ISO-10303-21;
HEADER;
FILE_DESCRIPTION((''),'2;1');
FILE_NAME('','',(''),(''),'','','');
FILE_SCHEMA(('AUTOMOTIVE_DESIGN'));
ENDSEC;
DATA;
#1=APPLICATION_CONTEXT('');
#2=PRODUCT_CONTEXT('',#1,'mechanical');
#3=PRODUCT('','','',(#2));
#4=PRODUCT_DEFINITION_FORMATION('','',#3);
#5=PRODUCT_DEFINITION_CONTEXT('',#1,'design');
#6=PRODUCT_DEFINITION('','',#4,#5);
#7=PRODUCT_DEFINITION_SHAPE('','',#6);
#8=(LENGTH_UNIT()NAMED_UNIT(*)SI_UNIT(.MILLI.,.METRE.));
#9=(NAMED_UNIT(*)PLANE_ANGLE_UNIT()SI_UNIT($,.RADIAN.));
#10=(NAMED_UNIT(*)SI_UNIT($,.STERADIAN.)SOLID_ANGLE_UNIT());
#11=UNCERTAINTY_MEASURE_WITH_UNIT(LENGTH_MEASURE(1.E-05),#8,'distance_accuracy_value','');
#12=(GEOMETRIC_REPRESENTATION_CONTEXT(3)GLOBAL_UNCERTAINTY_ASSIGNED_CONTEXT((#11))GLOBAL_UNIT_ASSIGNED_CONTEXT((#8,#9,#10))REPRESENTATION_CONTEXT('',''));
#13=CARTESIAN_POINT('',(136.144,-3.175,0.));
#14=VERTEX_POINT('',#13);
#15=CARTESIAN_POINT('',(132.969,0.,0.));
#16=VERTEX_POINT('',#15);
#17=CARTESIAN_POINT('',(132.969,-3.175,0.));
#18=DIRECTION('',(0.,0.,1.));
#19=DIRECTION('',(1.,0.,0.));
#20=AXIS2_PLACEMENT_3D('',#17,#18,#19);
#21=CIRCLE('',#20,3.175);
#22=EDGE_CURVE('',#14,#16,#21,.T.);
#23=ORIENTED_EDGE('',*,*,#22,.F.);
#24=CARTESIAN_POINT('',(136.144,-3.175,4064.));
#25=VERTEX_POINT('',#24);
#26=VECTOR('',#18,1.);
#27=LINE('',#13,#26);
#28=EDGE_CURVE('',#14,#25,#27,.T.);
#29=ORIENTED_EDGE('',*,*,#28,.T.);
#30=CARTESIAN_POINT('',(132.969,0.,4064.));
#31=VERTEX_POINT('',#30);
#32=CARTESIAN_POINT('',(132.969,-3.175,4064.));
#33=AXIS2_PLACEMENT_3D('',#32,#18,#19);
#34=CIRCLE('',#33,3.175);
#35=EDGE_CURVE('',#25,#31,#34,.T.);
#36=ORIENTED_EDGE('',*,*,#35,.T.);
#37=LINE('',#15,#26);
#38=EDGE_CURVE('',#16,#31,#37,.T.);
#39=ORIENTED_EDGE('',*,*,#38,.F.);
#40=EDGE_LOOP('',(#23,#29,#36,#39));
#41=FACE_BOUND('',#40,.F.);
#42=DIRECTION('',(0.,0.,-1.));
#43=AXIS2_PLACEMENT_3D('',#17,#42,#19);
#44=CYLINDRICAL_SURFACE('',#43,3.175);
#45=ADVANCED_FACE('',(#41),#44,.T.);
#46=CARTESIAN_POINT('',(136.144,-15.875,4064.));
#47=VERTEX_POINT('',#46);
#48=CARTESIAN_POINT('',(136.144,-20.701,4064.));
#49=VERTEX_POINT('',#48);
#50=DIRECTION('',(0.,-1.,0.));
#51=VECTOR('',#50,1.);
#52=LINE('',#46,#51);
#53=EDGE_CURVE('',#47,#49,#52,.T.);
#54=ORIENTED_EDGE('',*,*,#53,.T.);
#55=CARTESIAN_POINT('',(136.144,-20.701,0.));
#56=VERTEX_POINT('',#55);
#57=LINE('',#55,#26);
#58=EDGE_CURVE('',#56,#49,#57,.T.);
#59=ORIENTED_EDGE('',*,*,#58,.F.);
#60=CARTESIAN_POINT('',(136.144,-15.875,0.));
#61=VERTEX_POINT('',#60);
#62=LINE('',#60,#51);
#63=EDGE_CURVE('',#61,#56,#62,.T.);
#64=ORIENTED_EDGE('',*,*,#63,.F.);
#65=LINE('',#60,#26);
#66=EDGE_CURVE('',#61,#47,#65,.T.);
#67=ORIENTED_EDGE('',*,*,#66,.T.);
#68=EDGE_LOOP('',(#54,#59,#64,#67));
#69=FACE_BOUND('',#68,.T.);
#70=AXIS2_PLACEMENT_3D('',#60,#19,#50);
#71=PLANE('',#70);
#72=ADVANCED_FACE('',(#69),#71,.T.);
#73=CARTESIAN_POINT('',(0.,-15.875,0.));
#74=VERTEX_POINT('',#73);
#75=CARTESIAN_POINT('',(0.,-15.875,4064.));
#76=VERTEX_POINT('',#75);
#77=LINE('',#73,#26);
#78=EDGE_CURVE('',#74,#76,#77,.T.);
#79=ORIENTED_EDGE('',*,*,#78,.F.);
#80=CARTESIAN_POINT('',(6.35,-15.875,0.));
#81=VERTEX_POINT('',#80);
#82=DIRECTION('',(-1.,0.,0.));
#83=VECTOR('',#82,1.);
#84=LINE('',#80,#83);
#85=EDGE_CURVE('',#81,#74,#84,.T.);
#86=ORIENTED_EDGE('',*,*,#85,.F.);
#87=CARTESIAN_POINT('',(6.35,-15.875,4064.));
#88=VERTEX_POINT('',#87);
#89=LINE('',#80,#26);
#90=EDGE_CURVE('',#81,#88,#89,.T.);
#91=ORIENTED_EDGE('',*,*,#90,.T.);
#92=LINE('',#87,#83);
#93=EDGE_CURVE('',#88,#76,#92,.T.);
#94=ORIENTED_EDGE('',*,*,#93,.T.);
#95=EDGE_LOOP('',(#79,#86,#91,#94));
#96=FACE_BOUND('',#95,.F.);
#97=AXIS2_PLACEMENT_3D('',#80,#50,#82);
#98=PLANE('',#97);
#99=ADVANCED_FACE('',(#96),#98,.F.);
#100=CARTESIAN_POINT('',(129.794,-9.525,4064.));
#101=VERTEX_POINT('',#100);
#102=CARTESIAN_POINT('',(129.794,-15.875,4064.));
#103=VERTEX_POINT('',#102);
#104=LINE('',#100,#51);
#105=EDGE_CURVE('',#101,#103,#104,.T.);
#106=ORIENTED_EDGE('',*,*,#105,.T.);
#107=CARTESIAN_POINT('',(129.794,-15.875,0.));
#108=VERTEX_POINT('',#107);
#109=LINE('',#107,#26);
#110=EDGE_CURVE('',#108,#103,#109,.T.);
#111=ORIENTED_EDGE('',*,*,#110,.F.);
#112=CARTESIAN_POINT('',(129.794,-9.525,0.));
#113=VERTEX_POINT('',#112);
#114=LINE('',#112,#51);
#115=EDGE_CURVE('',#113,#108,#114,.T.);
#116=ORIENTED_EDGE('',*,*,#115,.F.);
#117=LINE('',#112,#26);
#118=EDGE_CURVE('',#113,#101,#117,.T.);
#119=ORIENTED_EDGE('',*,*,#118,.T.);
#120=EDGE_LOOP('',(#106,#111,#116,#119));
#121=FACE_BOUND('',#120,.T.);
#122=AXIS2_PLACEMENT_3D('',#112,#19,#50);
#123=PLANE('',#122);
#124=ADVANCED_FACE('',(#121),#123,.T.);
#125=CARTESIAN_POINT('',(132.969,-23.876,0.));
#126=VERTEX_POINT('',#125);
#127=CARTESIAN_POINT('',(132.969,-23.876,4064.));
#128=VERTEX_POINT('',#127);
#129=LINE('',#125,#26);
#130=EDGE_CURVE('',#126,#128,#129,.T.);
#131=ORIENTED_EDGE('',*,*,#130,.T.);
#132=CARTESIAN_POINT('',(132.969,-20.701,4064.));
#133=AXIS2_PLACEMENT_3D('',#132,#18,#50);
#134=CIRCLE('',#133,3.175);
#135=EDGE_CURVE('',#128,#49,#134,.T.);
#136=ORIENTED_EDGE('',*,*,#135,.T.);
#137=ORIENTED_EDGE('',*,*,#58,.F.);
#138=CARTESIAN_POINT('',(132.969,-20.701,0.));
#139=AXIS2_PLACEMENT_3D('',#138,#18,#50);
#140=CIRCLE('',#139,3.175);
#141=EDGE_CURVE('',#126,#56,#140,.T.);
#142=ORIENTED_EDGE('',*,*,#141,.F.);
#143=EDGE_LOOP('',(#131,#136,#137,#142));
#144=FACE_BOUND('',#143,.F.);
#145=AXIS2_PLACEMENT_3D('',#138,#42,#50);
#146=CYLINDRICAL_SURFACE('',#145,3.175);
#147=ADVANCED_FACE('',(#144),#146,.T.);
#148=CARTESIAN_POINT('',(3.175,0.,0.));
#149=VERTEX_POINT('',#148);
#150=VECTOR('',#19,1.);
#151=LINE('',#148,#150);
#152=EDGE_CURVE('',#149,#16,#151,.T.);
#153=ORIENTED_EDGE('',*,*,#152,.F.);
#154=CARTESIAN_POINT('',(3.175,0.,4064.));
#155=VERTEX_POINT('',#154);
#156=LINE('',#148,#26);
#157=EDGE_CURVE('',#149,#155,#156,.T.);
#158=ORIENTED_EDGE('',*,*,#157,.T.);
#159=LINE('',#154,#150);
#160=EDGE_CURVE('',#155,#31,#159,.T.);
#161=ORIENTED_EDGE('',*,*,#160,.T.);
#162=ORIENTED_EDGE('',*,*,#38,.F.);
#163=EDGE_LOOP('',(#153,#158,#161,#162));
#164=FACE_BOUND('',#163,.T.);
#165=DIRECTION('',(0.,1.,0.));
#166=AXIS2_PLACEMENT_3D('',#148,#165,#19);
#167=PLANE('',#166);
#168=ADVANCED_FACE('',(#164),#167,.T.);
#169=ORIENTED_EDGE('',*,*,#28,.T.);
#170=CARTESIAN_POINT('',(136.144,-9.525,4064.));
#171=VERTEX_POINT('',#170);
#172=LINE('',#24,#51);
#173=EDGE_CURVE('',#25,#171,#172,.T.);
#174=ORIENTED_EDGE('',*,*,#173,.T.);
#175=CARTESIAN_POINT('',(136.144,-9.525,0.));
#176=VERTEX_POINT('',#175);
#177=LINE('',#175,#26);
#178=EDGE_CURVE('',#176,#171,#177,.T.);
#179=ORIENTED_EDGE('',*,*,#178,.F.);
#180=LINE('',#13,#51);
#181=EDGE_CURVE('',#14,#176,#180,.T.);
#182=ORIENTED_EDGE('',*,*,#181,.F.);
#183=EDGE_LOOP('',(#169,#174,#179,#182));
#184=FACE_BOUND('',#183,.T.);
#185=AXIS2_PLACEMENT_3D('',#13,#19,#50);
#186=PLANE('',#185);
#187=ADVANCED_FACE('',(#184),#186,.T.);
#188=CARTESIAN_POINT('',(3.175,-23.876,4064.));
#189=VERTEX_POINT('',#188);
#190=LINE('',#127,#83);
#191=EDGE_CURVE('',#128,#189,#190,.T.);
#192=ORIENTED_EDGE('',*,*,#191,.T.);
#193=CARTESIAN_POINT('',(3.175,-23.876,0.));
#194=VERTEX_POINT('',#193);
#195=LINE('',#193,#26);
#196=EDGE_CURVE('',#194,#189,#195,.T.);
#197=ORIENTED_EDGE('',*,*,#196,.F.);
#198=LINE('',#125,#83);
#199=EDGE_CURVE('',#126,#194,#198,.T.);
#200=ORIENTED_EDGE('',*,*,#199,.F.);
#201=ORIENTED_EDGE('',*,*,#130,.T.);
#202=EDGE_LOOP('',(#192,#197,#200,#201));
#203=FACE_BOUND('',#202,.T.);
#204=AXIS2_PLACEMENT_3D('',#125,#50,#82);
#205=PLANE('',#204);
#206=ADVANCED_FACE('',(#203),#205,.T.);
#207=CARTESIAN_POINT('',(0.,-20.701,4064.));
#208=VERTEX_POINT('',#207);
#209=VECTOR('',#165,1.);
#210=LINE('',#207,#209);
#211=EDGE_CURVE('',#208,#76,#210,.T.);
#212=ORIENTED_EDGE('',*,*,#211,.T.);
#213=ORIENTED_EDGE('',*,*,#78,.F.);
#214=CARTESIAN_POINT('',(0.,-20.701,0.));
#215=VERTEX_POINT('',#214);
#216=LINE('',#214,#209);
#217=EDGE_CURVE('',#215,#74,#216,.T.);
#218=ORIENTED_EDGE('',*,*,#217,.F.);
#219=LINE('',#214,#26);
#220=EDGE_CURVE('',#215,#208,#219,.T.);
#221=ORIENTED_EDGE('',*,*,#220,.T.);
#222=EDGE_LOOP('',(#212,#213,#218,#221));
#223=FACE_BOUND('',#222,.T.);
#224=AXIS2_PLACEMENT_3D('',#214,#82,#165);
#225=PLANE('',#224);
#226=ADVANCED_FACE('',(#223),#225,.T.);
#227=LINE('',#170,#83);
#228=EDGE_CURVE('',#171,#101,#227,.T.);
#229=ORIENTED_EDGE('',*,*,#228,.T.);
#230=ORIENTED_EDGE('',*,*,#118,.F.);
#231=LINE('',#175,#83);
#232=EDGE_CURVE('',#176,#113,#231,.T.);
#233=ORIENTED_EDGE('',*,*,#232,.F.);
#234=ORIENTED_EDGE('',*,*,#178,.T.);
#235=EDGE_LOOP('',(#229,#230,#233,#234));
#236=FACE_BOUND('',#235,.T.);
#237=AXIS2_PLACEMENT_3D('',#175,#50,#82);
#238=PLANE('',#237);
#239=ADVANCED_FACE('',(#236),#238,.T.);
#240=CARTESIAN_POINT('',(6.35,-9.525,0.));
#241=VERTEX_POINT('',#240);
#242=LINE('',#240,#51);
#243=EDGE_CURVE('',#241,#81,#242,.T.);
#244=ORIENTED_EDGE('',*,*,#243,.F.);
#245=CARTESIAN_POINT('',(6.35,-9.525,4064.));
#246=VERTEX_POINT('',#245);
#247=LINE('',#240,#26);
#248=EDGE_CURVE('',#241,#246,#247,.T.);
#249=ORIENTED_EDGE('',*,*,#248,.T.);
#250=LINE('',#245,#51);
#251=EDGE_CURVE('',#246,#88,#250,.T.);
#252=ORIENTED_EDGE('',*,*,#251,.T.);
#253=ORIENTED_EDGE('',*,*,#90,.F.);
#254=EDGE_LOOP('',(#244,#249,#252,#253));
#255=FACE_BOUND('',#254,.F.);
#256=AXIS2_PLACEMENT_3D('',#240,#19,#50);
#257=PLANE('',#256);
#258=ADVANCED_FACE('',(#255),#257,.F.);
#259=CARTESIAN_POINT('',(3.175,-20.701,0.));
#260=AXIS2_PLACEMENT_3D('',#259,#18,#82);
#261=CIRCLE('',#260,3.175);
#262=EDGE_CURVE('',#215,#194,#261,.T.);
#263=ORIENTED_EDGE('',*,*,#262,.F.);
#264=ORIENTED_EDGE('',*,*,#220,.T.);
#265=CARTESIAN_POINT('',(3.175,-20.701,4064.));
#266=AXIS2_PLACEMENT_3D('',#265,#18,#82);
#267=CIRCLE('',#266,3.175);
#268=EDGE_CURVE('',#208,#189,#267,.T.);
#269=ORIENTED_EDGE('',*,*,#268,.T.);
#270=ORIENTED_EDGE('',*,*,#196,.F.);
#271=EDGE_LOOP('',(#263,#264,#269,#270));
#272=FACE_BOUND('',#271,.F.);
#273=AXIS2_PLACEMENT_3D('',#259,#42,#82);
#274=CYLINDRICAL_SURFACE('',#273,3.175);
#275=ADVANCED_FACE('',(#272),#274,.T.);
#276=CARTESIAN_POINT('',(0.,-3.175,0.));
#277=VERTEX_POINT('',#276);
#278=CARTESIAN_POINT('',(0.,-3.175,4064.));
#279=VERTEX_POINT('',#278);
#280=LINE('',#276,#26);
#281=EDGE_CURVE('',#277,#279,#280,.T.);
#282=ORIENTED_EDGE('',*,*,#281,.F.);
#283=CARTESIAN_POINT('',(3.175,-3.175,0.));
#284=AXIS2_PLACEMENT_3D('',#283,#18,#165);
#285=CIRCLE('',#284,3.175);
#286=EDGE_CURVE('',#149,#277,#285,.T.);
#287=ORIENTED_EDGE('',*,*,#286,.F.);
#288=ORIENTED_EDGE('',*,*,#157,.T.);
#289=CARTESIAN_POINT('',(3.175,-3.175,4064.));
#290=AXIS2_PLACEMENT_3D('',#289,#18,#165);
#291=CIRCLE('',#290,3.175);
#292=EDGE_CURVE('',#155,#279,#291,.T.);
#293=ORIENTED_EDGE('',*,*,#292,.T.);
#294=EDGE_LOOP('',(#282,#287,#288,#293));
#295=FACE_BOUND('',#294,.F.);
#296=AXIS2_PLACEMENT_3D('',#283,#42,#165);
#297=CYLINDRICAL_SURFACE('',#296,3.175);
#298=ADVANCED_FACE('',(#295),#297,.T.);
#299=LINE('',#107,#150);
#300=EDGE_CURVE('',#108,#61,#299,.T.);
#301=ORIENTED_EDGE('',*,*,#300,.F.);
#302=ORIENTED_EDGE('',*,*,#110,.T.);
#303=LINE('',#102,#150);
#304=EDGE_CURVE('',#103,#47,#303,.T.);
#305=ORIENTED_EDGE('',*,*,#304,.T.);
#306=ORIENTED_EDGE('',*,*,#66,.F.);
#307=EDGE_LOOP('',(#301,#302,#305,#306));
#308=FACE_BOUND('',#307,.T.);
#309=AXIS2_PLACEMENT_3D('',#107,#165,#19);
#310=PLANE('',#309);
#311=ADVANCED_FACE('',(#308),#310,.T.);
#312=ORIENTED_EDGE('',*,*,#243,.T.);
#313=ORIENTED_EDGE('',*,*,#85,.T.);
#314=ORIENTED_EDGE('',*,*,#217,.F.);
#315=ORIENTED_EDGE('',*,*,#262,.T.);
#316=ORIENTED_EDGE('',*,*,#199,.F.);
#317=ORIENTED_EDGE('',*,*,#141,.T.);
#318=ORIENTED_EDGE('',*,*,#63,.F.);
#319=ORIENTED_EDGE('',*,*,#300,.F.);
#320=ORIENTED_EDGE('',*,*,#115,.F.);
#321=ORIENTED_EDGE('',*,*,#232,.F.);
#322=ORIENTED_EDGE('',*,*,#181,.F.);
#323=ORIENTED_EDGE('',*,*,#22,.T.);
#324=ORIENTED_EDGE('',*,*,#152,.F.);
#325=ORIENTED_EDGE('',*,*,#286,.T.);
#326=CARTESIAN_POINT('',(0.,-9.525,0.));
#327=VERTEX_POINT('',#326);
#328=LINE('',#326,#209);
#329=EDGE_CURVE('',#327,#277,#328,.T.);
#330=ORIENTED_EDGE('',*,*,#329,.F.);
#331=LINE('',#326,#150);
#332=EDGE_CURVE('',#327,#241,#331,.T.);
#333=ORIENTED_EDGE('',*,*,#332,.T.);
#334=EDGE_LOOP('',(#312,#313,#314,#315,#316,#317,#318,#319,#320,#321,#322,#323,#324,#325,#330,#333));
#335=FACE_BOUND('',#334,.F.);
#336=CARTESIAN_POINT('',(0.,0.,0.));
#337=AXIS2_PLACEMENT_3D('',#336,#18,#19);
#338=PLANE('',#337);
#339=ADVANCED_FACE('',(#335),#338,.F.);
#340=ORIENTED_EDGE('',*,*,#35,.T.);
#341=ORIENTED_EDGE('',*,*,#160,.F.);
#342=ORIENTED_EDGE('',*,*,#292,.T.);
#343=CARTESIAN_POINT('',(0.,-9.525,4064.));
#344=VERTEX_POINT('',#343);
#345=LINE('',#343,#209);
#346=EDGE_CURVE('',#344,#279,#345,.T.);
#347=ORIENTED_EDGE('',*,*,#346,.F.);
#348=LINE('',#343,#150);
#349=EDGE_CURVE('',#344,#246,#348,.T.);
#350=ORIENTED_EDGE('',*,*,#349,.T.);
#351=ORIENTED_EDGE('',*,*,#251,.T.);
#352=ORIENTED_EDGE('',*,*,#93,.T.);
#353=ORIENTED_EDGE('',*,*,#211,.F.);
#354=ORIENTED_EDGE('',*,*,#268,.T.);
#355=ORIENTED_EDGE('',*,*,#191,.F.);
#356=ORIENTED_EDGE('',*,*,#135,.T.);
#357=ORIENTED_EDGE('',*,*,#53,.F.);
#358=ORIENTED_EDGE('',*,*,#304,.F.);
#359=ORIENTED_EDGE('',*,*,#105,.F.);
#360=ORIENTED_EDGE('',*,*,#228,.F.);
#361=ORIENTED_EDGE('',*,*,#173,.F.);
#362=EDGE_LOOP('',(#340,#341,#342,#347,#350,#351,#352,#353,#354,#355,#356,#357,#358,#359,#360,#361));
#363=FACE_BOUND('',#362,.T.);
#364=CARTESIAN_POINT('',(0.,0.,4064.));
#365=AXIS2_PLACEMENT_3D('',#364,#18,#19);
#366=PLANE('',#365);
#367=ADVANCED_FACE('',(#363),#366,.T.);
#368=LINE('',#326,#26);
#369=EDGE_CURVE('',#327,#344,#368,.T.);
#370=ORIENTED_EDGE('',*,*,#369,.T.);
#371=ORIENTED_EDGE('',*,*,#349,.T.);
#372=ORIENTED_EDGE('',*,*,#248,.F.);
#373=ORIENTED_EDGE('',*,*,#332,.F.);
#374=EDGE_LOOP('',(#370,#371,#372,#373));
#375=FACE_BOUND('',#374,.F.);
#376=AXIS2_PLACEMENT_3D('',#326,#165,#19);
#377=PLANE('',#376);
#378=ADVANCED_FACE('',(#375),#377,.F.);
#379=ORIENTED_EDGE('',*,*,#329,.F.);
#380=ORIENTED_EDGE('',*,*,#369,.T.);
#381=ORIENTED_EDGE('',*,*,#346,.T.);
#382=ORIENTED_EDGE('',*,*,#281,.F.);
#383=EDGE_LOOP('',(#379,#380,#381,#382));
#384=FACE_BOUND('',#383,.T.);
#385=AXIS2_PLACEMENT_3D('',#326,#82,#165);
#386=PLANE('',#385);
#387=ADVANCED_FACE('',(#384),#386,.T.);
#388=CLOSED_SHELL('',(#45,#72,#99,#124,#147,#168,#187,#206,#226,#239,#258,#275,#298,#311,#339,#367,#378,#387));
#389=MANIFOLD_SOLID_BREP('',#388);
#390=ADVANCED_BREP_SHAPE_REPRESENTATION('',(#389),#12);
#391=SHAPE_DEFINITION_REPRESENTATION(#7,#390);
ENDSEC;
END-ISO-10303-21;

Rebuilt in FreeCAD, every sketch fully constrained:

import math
import FreeCAD as App
import Part
import Sketcher
from FreeCAD import Vector
Q = App.Units.Quantity

doc = App.newDocument("Part")
body = doc.addObject("PartDesign::Body", "Body")

sketch1 = doc.addObject("Sketcher::SketchObject", "Sketch")
body.addObject(sketch1)
sketch1.AttachmentSupport = (doc.XY_Plane, [""])
sketch1.MapMode = "FlatFace"
sketch1.addGeometry([
    Part.LineSegment(Vector(133, 0, 0), Vector(3.2, 0, 0)),
    Part.ArcOfCircle(Part.Circle(Vector(3.2, -3.2, 0), Vector(0, 0, 1), 3.2), math.radians(90), math.radians(180)),
    Part.LineSegment(Vector(0, -3.2, 0), Vector(0, -9.5, 0)),
    Part.LineSegment(Vector(0, -9.5, 0), Vector(6.3, -9.5, 0)),
    Part.LineSegment(Vector(6.3, -9.5, 0), Vector(6.3, -15.9, 0)),
    Part.LineSegment(Vector(6.3, -15.9, 0), Vector(0, -15.9, 0)),
    Part.LineSegment(Vector(0, -15.9, 0), Vector(0, -20.7, 0)),
    Part.ArcOfCircle(Part.Circle(Vector(3.2, -20.7, 0), Vector(0, 0, 1), 3.2), math.radians(180), math.radians(270)),
    Part.LineSegment(Vector(3.2, -23.9, 0), Vector(133, -23.9, 0)),
    Part.ArcOfCircle(Part.Circle(Vector(133, -20.7, 0), Vector(0, 0, 1), 3.2), math.radians(-90), math.radians(0)),
    Part.LineSegment(Vector(136.1, -20.7, 0), Vector(136.1, -15.9, 0)),
    Part.LineSegment(Vector(136.1, -15.9, 0), Vector(129.8, -15.9, 0)),
    Part.LineSegment(Vector(129.8, -15.9, 0), Vector(129.8, -9.5, 0)),
    Part.LineSegment(Vector(129.8, -9.5, 0), Vector(136.1, -9.5, 0)),
    Part.LineSegment(Vector(136.1, -9.5, 0), Vector(136.1, -3.2, 0)),
    Part.ArcOfCircle(Part.Circle(Vector(133, -3.2, 0), Vector(0, 0, 1), 3.2), math.radians(0), math.radians(90)),
], False)
sketch1.addConstraint([
    Sketcher.Constraint("Tangent", 0, 2, 1, 1),
    Sketcher.Constraint("Tangent", 1, 2, 2, 1),
    Sketcher.Constraint("Coincident", 2, 2, 3, 1),
    Sketcher.Constraint("Coincident", 3, 2, 4, 1),
    Sketcher.Constraint("Coincident", 4, 2, 5, 1),
    Sketcher.Constraint("Coincident", 5, 2, 6, 1),
    Sketcher.Constraint("Tangent", 6, 2, 7, 1),
    Sketcher.Constraint("Tangent", 7, 2, 8, 1),
    Sketcher.Constraint("Tangent", 8, 2, 9, 1),
    Sketcher.Constraint("Tangent", 9, 2, 10, 1),
    Sketcher.Constraint("Coincident", 10, 2, 11, 1),
    Sketcher.Constraint("Coincident", 11, 2, 12, 1),
    Sketcher.Constraint("Coincident", 12, 2, 13, 1),
    Sketcher.Constraint("Coincident", 13, 2, 14, 1),
    Sketcher.Constraint("Tangent", 14, 2, 15, 1),
    Sketcher.Constraint("Tangent", 15, 2, 0, 1),
    Sketcher.Constraint("Horizontal", 0),
    Sketcher.Constraint("Vertical", 2),
    Sketcher.Constraint("Horizontal", 3),
    Sketcher.Constraint("Vertical", 4),
    Sketcher.Constraint("Horizontal", 5),
    Sketcher.Constraint("Vertical", 6),
    Sketcher.Constraint("Horizontal", 8),
    Sketcher.Constraint("Vertical", 10),
    Sketcher.Constraint("Horizontal", 11),
    Sketcher.Constraint("Vertical", 12),
    Sketcher.Constraint("Horizontal", 13),
    Sketcher.Constraint("Vertical", 14),
    Sketcher.Constraint("Equal", 1, 7),
    Sketcher.Constraint("Equal", 7, 9),
    Sketcher.Constraint("Equal", 9, 15),
    Sketcher.Constraint("PointOnObject", 0, 2, -1),
    Sketcher.Constraint("PointOnObject", 1, 2, -2),
    Sketcher.Constraint("PointOnObject", 5, 2, -2),
    Sketcher.Constraint("Horizontal", 5, 2, 10, 2),
    Sketcher.Constraint("Horizontal", 3, 2, 12, 2),
    Sketcher.Constraint("Vertical", 9, 3, 15, 3),
    Sketcher.Constraint("Equal", 5, 11),
    Sketcher.Constraint("Equal", 13, 2),
    Sketcher.Constraint("Equal", 2, 4),
    Sketcher.Constraint("Radius", 1, Q("0.125 in")),
    Sketcher.Constraint("DistanceX", 3, 1, 3, 2, Q("0.25 in")),
    Sketcher.Constraint("DistanceY", 7, 2, -1, 1, Q("0.94 in")),
    Sketcher.Constraint("DistanceX", -1, 1, 9, 2, Q("5.36 in")),
])
pad1 = doc.addObject("PartDesign::Pad", "Pad")
body.addObject(pad1)
pad1.Profile = sketch1
pad1.Length = Q("160 in")

doc.recompute()
